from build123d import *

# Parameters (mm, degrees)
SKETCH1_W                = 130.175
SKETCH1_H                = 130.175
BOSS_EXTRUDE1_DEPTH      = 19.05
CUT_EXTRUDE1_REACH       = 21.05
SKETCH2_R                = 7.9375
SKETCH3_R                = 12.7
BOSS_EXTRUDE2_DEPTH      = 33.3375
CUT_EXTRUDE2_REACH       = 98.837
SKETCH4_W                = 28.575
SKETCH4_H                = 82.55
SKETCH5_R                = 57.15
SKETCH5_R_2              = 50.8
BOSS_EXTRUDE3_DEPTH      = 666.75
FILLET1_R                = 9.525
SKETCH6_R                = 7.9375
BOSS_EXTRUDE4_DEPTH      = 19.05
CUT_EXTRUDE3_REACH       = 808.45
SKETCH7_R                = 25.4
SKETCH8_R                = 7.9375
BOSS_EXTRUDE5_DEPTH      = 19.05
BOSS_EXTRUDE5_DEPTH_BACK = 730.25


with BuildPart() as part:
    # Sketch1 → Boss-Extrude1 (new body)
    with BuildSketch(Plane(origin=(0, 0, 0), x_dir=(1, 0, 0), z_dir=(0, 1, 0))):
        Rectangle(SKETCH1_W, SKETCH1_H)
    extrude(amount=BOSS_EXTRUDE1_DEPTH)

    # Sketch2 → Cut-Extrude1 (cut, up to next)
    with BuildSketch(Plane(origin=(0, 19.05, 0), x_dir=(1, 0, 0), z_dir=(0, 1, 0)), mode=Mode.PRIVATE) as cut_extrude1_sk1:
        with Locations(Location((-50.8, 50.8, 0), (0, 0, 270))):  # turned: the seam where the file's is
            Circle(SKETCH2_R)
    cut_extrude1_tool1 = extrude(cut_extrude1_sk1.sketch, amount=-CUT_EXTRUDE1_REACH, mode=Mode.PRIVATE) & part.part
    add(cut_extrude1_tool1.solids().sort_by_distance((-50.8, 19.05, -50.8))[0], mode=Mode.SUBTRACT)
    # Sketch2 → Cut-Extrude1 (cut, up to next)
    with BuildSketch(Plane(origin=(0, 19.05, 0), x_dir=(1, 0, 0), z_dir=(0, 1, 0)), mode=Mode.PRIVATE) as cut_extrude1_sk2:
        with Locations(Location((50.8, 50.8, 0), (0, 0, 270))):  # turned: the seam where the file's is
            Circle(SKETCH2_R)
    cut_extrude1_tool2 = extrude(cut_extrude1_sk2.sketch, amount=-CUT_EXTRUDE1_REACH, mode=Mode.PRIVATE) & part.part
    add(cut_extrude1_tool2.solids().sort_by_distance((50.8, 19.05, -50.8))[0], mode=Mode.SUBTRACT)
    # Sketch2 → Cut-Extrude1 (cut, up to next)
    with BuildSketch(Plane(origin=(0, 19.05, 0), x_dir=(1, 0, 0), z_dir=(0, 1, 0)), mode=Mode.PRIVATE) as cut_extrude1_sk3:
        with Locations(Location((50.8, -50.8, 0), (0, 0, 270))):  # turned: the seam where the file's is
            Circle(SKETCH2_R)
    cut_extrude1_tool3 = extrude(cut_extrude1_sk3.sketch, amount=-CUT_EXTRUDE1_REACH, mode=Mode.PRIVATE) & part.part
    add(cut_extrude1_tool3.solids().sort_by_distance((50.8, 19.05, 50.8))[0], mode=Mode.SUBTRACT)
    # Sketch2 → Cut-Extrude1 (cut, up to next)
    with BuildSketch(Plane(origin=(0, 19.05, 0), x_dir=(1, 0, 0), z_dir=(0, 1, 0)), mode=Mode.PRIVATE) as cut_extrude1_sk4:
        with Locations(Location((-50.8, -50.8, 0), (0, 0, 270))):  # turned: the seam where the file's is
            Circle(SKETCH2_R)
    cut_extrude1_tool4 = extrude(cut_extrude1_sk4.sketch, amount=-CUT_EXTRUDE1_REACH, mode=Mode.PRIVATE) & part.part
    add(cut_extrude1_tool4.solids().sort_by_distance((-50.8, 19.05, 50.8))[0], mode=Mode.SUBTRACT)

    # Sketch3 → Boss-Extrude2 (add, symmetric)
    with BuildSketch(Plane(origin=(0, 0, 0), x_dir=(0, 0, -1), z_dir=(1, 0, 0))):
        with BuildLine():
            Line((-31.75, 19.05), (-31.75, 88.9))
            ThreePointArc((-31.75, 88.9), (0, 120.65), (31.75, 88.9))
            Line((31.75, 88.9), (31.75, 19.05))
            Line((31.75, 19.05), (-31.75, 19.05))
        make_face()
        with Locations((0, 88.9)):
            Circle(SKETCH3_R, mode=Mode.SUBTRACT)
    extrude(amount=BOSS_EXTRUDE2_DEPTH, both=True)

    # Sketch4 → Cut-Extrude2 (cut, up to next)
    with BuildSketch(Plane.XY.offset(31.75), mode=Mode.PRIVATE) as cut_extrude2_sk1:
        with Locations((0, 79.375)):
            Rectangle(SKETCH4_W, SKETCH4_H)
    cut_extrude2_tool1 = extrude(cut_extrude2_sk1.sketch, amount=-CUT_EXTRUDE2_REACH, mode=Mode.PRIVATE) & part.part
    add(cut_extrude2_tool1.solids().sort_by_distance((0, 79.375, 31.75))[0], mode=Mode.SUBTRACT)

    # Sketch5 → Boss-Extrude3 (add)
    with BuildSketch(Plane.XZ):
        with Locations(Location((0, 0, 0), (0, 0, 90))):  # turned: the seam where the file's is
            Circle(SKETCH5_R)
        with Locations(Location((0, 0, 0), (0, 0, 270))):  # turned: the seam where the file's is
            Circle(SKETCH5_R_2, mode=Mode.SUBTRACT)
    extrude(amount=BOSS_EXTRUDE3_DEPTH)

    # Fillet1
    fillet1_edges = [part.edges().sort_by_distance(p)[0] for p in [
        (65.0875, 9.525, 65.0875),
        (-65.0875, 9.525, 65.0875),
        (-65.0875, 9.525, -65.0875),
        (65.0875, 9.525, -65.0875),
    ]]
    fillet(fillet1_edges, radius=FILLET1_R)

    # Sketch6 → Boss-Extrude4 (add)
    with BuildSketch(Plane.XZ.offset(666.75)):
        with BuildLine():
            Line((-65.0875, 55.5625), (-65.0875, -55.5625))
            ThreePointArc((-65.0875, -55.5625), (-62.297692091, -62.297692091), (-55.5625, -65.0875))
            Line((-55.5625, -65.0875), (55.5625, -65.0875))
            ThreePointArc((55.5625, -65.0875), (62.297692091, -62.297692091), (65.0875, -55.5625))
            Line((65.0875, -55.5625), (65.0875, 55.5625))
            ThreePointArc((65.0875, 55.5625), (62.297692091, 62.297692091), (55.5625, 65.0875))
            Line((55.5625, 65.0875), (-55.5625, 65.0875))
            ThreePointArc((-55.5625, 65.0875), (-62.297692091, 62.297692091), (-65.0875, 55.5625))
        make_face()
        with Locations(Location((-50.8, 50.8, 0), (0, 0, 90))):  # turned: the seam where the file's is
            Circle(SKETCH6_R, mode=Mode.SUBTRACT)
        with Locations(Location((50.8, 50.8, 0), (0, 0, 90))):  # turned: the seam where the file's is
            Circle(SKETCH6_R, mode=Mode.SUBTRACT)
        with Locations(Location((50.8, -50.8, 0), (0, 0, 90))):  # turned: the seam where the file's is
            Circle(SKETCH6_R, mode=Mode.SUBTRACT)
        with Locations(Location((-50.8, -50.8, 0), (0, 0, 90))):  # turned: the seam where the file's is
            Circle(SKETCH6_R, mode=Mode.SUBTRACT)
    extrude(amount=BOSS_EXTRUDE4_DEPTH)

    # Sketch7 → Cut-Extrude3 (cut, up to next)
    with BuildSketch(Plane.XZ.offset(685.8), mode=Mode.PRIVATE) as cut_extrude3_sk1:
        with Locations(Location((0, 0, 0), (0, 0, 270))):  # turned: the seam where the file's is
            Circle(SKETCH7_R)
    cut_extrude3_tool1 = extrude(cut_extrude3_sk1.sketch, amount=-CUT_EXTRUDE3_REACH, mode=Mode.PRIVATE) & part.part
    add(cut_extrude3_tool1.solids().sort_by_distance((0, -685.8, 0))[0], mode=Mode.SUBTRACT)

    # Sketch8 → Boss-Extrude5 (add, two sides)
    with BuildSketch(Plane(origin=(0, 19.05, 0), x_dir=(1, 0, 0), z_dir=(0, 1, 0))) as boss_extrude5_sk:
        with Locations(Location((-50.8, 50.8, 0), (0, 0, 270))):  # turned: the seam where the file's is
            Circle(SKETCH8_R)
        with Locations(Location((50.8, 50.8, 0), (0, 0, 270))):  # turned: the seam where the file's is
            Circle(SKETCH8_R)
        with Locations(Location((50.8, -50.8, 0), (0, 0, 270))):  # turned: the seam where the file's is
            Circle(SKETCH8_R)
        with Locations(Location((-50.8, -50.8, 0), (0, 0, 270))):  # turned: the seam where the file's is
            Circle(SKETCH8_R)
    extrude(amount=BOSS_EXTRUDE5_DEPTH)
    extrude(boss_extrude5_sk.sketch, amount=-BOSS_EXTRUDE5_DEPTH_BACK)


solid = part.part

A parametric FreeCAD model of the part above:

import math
import FreeCAD as App
import Part
import Sketcher
from FreeCAD import Vector
Q = App.Units.Quantity


def edges_at(feature, points):
    """Names of the edges that pass closest to the given points."""
    edges = feature.Shape.Edges
    near = lambda p: min(range(len(edges)), key=lambda i: edges[i].distToShape(Part.Vertex(*p))[0])
    return sorted({f"Edge{near(p) + 1}" for p in points})

doc = App.newDocument("Part")
params = doc.addObject("Spreadsheet::Sheet", "Params")
for row, (alias, value) in enumerate([
    ("sketch1_width", "5.125 in"),
    ("pad1_length", "0.75 in"),
    ("sketch2_diameter", "0.625 in"),
    ("sketch3_diameter", "0.625 in"),
    ("sketch4_diameter", "0.625 in"),
    ("sketch5_diameter", "0.625 in"),
    ("sketch6_diameter", "1 in"),
    ("sketch6_radius", "1.25 in"),
    ("sketch6_width", "2.75 in"),
    ("pad2_length", "2.625 in"),
    ("sketch7_height", "3.25 in"),
    ("sketch7_width", "1.125 in"),
    ("sketch8_diameter", "4 in"),
    ("sketch8_diameter2", "4.5 in"),
    ("pad3_length", "26.25 in"),
    ("fillet_radius", "0.375 in"),
    ("sketch9_diameter", "0.625 in"),
    ("sketch9_radius", "0.375 in"),
    ("sketch9_width", "4.375 in"),
    ("pad4_length", "0.75 in"),
    ("sketch10_diameter", "2 in"),
    ("sketch11_diameter", "0.625 in"),
    ("pad5_length", "0.75 in"),
    ("pad5_length2", "28.75 in"),
], start=1):
    params.set(f"A{row}", alias)
    params.set(f"B{row}", "=" + value)
    params.setAlias(f"B{row}", alias)

body = doc.addObject("PartDesign::Body", "Body")

# Sketch on XZ plane
sketch1 = body.newObject("Sketcher::SketchObject", "Sketch")
sketch1.AttachmentSupport = (doc.getObject("XZ_Plane"), [""])
sketch1.MapMode = "FlatFace"
sketch1.addGeometry([
    Part.LineSegment(Vector(-65, -65, 0), Vector(-65, 65, 0)),
    Part.LineSegment(Vector(-65, 65, 0), Vector(65, 65, 0)),
    Part.LineSegment(Vector(65, 65, 0), Vector(65, -65, 0)),
    Part.LineSegment(Vector(65, -65, 0), Vector(-65, -65, 0)),
], False)
sketch1.addConstraint([
    Sketcher.Constraint("Coincident", 0, 2, 1, 1),
    Sketcher.Constraint("Coincident", 1, 2, 2, 1),
    Sketcher.Constraint("Coincident", 2, 2, 3, 1),
    Sketcher.Constraint("Coincident", 3, 2, 0, 1),
    Sketcher.Constraint("Vertical", 0),
    Sketcher.Constraint("Horizontal", 1),
    Sketcher.Constraint("Vertical", 2),
    Sketcher.Constraint("Horizontal", 3),
    Sketcher.Constraint("Symmetric", 0, 2, 2, 2, -1, 1),
    Sketcher.Constraint("Equal", 3, 0),
    Sketcher.Constraint("DistanceX", 1, 1, 1, 2, Q("5.125 in")),
])
sketch1.setExpression("Constraints[10]", "Params.sketch1_width")
pad1 = body.newObject("PartDesign::Pad", "Pad")
pad1.Profile = sketch1
pad1.setExpression("Length", "Params.pad1_length")
pad1.Reversed = True

# Sketch on XZ plane
sketch2 = body.newObject("Sketcher::SketchObject", "Sketch001")
sketch2.AttachmentSupport = (doc.getObject("XZ_Plane"), [""])
sketch2.MapMode = "FlatFace"
sketch2.AttachmentOffset = App.Placement(Vector(0, 0, -0.75 * 25.4), App.Rotation())
sketch2.addGeometry(Part.Circle(Vector(-51, -51, 0), Vector(0, 0, 1), 8), False)
sketch2.addConstraint([
    Sketcher.Constraint("Diameter", 0, Q("0.625 in")),
    Sketcher.Constraint("DistanceX", 0, 3, -1, 1, Q("2 in")),
    Sketcher.Constraint("DistanceY", 0, 3, -1, 1, Q("2 in")),
])
sketch2.setExpression("Constraints[0]", "Params.sketch2_diameter")
pocket1 = body.newObject("PartDesign::Pocket", "Pocket")
pocket1.Profile = sketch2
pocket1.Type = "UpToFirst"
pocket1.Reversed = True

# Sketch on XZ plane
sketch3 = body.newObject("Sketcher::SketchObject", "Sketch002")
sketch3.AttachmentSupport = (doc.getObject("XZ_Plane"), [""])
sketch3.MapMode = "FlatFace"
sketch3.AttachmentOffset = App.Placement(Vector(0, 0, -0.75 * 25.4), App.Rotation())
sketch3.addGeometry(Part.Circle(Vector(51, -51, 0), Vector(0, 0, 1), 8), False)
sketch3.addConstraint([
    Sketcher.Constraint("Diameter", 0, Q("0.625 in")),
    Sketcher.Constraint("DistanceX", -1, 1, 0, 3, Q("2 in")),
    Sketcher.Constraint("DistanceY", 0, 3, -1, 1, Q("2 in")),
])
sketch3.setExpression("Constraints[0]", "Params.sketch3_diameter")
pocket2 = body.newObject("PartDesign::Pocket", "Pocket001")
pocket2.Profile = sketch3
pocket2.Type = "UpToFirst"
pocket2.Reversed = True

# Sketch on XZ plane
sketch4 = body.newObject("Sketcher::SketchObject", "Sketch003")
sketch4.AttachmentSupport = (doc.getObject("XZ_Plane"), [""])
sketch4.MapMode = "FlatFace"
sketch4.AttachmentOffset = App.Placement(Vector(0, 0, -0.75 * 25.4), App.Rotation())
sketch4.addGeometry(Part.Circle(Vector(51, 51, 0), Vector(0, 0, 1), 8), False)
sketch4.addConstraint([
    Sketcher.Constraint("Diameter", 0, Q("0.625 in")),
    Sketcher.Constraint("DistanceX", -1, 1, 0, 3, Q("2 in")),
    Sketcher.Constraint("DistanceY", -1, 1, 0, 3, Q("2 in")),
])
sketch4.setExpression("Constraints[0]", "Params.sketch4_diameter")
pocket3 = body.newObject("PartDesign::Pocket", "Pocket002")
pocket3.Profile = sketch4
pocket3.Type = "UpToFirst"
pocket3.Reversed = True

# Sketch on XZ plane
sketch5 = body.newObject("Sketcher::SketchObject", "Sketch004")
sketch5.AttachmentSupport = (doc.getObject("XZ_Plane"), [""])
sketch5.MapMode = "FlatFace"
sketch5.AttachmentOffset = App.Placement(Vector(0, 0, -0.75 * 25.4), App.Rotation())
sketch5.addGeometry(Part.Circle(Vector(-51, 51, 0), Vector(0, 0, 1), 8), False)
sketch5.addConstraint([
    Sketcher.Constraint("Diameter", 0, Q("0.625 in")),
    Sketcher.Constraint("DistanceX", 0, 3, -1, 1, Q("2 in")),
    Sketcher.Constraint("DistanceY", -1, 1, 0, 3, Q("2 in")),
])
sketch5.setExpression("Constraints[0]", "Params.sketch5_diameter")
pocket4 = body.newObject("PartDesign::Pocket", "Pocket003")
pocket4.Profile = sketch5
pocket4.Type = "UpToFirst"
pocket4.Reversed = True

# Sketch on YZ plane
sketch6 = body.newObject("Sketcher::SketchObject", "Sketch005")
sketch6.AttachmentSupport = (doc.getObject("YZ_Plane"), [""])
sketch6.MapMode = "FlatFace"
sketch6.addGeometry([
    Part.LineSegment(Vector(89, 32, 0), Vector(19, 32, 0)),  # 0
    Part.LineSegment(Vector(19, 32, 0), Vector(19, -32, 0)),  # 1
    Part.LineSegment(Vector(19, -32, 0), Vector(89, -32, 0)),  # 2
    Part.ArcOfCircle(Part.Circle(Vector(89, 0, 0), Vector(0, 0, 1), 32), math.radians(-90), math.radians(90)),  # 3
    Part.Circle(Vector(89, 0, 0), Vector(0, 0, 1), 13),  # 4
], False)
sketch6.addConstraint([
    Sketcher.Constraint("Coincident", 0, 2, 1, 1),
    Sketcher.Constraint("Coincident", 1, 2, 2, 1),
    Sketcher.Constraint("Tangent", 2, 2, 3, 1),
    Sketcher.Constraint("Tangent", 3, 2, 0, 1),
    Sketcher.Constraint("Horizontal", 0),
    Sketcher.Constraint("Vertical", 1),
    Sketcher.Constraint("Horizontal", 2),
    Sketcher.Constraint("Coincident", 4, 3, 3, 3),
    Sketcher.Constraint("PointOnObject", 3, 3, -1),
    Sketcher.Constraint("Diameter", 4, Q("1 in")),
    Sketcher.Constraint("Radius", 3, Q("1.25 in")),
    Sketcher.Constraint("DistanceX", 0, 2, 0, 1, Q("2.75 in")),
    Sketcher.Constraint("DistanceX", -1, 1, 3, 3, Q("3.5 in")),
])
sketch6.setExpression("Constraints[9]", "Params.sketch6_diameter")
sketch6.setExpression("Constraints[10]", "Params.sketch6_radius")
sketch6.setExpression("Constraints[11]", "Params.sketch6_width")
pad2 = body.newObject("PartDesign::Pad", "Pad001")
pad2.Profile = sketch6
pad2.setExpression("Length", "Params.pad2_length")
pad2.Midplane = True

# Sketch on XY plane
sketch7 = body.newObject("Sketcher::SketchObject", "Sketch006")
sketch7.AttachmentSupport = (doc.getObject("XY_Plane"), [""])
sketch7.MapMode = "FlatFace"
sketch7.AttachmentOffset = App.Placement(Vector(0, 0, 1.25 * 25.4), App.Rotation())
sketch7.addGeometry([
    Part.LineSegment(Vector(-14, 121, 0), Vector(-14, 38, 0)),
    Part.LineSegment(Vector(-14, 38, 0), Vector(14, 38, 0)),
    Part.LineSegment(Vector(14, 38, 0), Vector(14, 121, 0)),
    Part.LineSegment(Vector(14, 121, 0), Vector(-14, 121, 0)),
], False)
sketch7.addConstraint([
    Sketcher.Constraint("Coincident", 0, 2, 1, 1),
    Sketcher.Constraint("Coincident", 1, 2, 2, 1),
    Sketcher.Constraint("Coincident", 2, 2, 3, 1),
    Sketcher.Constraint("Coincident", 3, 2, 0, 1),
    Sketcher.Constraint("Vertical", 0),
    Sketcher.Constraint("Horizontal", 1),
    Sketcher.Constraint("Vertical", 2),
    Sketcher.Constraint("Horizontal", 3),
    Sketcher.Constraint("DistanceY", 0, 2, 0, 1, Q("3.25 in")),
    Sketcher.Constraint("DistanceY", -1, 1, 0, 2, Q("1.5 in")),
    Sketcher.Constraint("DistanceX", 1, 1, 1, 2, Q("1.125 in")),
    Sketcher.Constraint("DistanceX", 0, 2, -1, 1, Q("0.5625 in")),
])
sketch7.setExpression("Constraints[8]", "Params.sketch7_height")
sketch7.setExpression("Constraints[10]", "Params.sketch7_width")
pocket5 = body.newObject("PartDesign::Pocket", "Pocket004")
pocket5.Profile = sketch7
pocket5.Type = "UpToFirst"

# Sketch on XZ plane
sketch8 = body.newObject("Sketcher::SketchObject", "Sketch007")
sketch8.AttachmentSupport = (doc.getObject("XZ_Plane"), [""])
sketch8.MapMode = "FlatFace"
sketch8.addGeometry([
    Part.Circle(Vector(0, 0, 0), Vector(0, 0, 1), 57),
    Part.Circle(Vector(0, 0, 0), Vector(0, 0, 1), 51),
], False)
sketch8.addConstraint([
    Sketcher.Constraint("Coincident", 0, 3, -1, 1),
    Sketcher.Constraint("Coincident", 1, 3, -1, 1),
    Sketcher.Constraint("Diameter", 1, Q("4 in")),
    Sketcher.Constraint("Diameter", 0, Q("4.5 in")),
])
sketch8.setExpression("Constraints[2]", "Params.sketch8_diameter")
sketch8.setExpression("Constraints[3]", "Params.sketch8_diameter2")
pad3 = body.newObject("PartDesign::Pad", "Pad002")
pad3.Profile = sketch8
pad3.setExpression("Length", "Params.pad3_length")
doc.recompute()

fillet = body.newObject("PartDesign::Fillet", "Fillet")
fillet.Base = (pad3, edges_at(pad3, [
    (65.088, 9.525, 65.088),
    (-65.088, 9.525, 65.088),
    (-65.088, 9.525, -65.088),
    (65.088, 9.525, -65.088),
]))
fillet.setExpression("Radius", "Params.fillet_radius")

# Sketch on XZ plane
sketch9 = body.newObject("Sketcher::SketchObject", "Sketch008")
sketch9.AttachmentSupport = (doc.getObject("XZ_Plane"), [""])
sketch9.MapMode = "FlatFace"
sketch9.AttachmentOffset = App.Placement(Vector(0, 0, 26.25 * 25.4), App.Rotation())
sketch9.addGeometry([
    Part.LineSegment(Vector(-65, 56, 0), Vector(-65, -56, 0)),  # 0
    Part.ArcOfCircle(Part.Circle(Vector(-56, -56, 0), Vector(0, 0, 1), 10), math.radians(180), math.radians(270)),  # 1
    Part.LineSegment(Vector(-56, -65, 0), Vector(56, -65, 0)),  # 2
    Part.ArcOfCircle(Part.Circle(Vector(56, -56, 0), Vector(0, 0, 1), 10), math.radians(-90), math.radians(0)),  # 3
    Part.LineSegment(Vector(65, -56, 0), Vector(65, 56, 0)),  # 4
    Part.ArcOfCircle(Part.Circle(Vector(56, 56, 0), Vector(0, 0, 1), 10), math.radians(0), math.radians(90)),  # 5
    Part.LineSegment(Vector(56, 65, 0), Vector(-56, 65, 0)),  # 6
    Part.ArcOfCircle(Part.Circle(Vector(-56, 56, 0), Vector(0, 0, 1), 10), math.radians(90), math.radians(180)),  # 7
    Part.Circle(Vector(-51, -51, 0), Vector(0, 0, 1), 8),  # 8
    Part.Circle(Vector(51, -51, 0), Vector(0, 0, 1), 8),  # 9
    Part.Circle(Vector(-51, 51, 0), Vector(0, 0, 1), 8),  # 10
    Part.Circle(Vector(51, 51, 0), Vector(0, 0, 1), 8),  # 11
], False)
sketch9.addConstraint([
    Sketcher.Constraint("Tangent", 0, 2, 1, 1),
    Sketcher.Constraint("Tangent", 1, 2, 2, 1),
    Sketcher.Constraint("Tangent", 2, 2, 3, 1),
    Sketcher.Constraint("Tangent", 3, 2, 4, 1),
    Sketcher.Constraint("Tangent", 4, 2, 5, 1),
    Sketcher.Constraint("Tangent", 5, 2, 6, 1),
    Sketcher.Constraint("Tangent", 6, 2, 7, 1),
    Sketcher.Constraint("Tangent", 7, 2, 0, 1),
    Sketcher.Constraint("Vertical", 0),
    Sketcher.Constraint("Horizontal", 2),
    Sketcher.Constraint("Vertical", 4),
    Sketcher.Constraint("Horizontal", 6),
    Sketcher.Constraint("Equal", 1, 3),
    Sketcher.Constraint("Equal", 3, 5),
    Sketcher.Constraint("Equal", 5, 7),
    Sketcher.Constraint("Equal", 8, 9),
    Sketcher.Constraint("Equal", 9, 10),
    Sketcher.Constraint("Equal", 10, 11),
    Sketcher.Constraint("Symmetric", 1, 3, 5, 3, -1, 1),
    Sketcher.Constraint("Symmetric", 9, 3, 10, 3, -1, 1),
    Sketcher.Constraint("Symmetric", 8, 3, 11, 3, -1, 1),
    Sketcher.Constraint("Symmetric", 8, 3, 9, 3, -2),
    Sketcher.Constraint("Equal", 6, 0),
    Sketcher.Constraint("Diameter", 8, Q("0.625 in")),
    Sketcher.Constraint("DistanceX", 8, 3, -1, 1, Q("2 in")),
    Sketcher.Constraint("DistanceY", 8, 3, -1, 1, Q("2 in")),
    Sketcher.Constraint("Radius", 1, Q("0.375 in")),
    Sketcher.Constraint("DistanceX", 2, 1, 2, 2, Q("4.375 in")),
])
sketch9.setExpression("Constraints[23]", "Params.sketch9_diameter")
sketch9.setExpression("Constraints[26]", "Params.sketch9_radius")
sketch9.setExpression("Constraints[27]", "Params.sketch9_width")
pad4 = body.newObject("PartDesign::Pad", "Pad003")
pad4.Profile = sketch9
pad4.setExpression("Length", "Params.pad4_length")

# Sketch on XZ plane
sketch10 = body.newObject("Sketcher::SketchObject", "Sketch009")
sketch10.AttachmentSupport = (doc.getObject("XZ_Plane"), [""])
sketch10.MapMode = "FlatFace"
sketch10.AttachmentOffset = App.Placement(Vector(0, 0, 27 * 25.4), App.Rotation())
sketch10.addGeometry(Part.Circle(Vector(0, 0, 0), Vector(0, 0, 1), 25), False)
sketch10.addConstraint([
    Sketcher.Constraint("Coincident", 0, 3, -1, 1),
    Sketcher.Constraint("Diameter", 0, Q("2 in")),
])
sketch10.setExpression("Constraints[1]", "Params.sketch10_diameter")
pocket6 = body.newObject("PartDesign::Pocket", "Pocket005")
pocket6.Profile = sketch10
pocket6.Type = "UpToFirst"

# Sketch on XZ plane
sketch11 = body.newObject("Sketcher::SketchObject", "Sketch010")
sketch11.AttachmentSupport = (doc.getObject("XZ_Plane"), [""])
sketch11.MapMode = "FlatFace"
sketch11.AttachmentOffset = App.Placement(Vector(0, 0, -0.75 * 25.4), App.Rotation())
sketch11.addGeometry([
    Part.Circle(Vector(-51, -51, 0), Vector(0, 0, 1), 8),
    Part.Circle(Vector(51, -51, 0), Vector(0, 0, 1), 8),
    Part.Circle(Vector(51, 51, 0), Vector(0, 0, 1), 8),
    Part.Circle(Vector(-51, 51, 0), Vector(0, 0, 1), 8),
], False)
sketch11.addConstraint([
    Sketcher.Constraint("Equal", 0, 1),
    Sketcher.Constraint("Equal", 1, 2),
    Sketcher.Constraint("Equal", 2, 3),
    Sketcher.Constraint("Symmetric", 0, 3, 2, 3, -1, 1),
    Sketcher.Constraint("Symmetric", 1, 3, 3, 3, -1, 1),
    Sketcher.Constraint("Symmetric", 0, 3, 1, 3, -2),
    Sketcher.Constraint("Diameter", 0, Q("0.625 in")),
    Sketcher.Constraint("DistanceX", 0, 3, -1, 1, Q("2 in")),
    Sketcher.Constraint("DistanceY", 0, 3, -1, 1, Q("2 in")),
])
sketch11.setExpression("Constraints[6]", "Params.sketch11_diameter")
pad5 = body.newObject("PartDesign::Pad", "Pad004")
pad5.Profile = sketch11
pad5.Type = "TwoLengths"
pad5.setExpression("Length", "Params.pad5_length")
pad5.setExpression("Length2", "Params.pad5_length2")
pad5.Reversed = True

doc.recompute()
